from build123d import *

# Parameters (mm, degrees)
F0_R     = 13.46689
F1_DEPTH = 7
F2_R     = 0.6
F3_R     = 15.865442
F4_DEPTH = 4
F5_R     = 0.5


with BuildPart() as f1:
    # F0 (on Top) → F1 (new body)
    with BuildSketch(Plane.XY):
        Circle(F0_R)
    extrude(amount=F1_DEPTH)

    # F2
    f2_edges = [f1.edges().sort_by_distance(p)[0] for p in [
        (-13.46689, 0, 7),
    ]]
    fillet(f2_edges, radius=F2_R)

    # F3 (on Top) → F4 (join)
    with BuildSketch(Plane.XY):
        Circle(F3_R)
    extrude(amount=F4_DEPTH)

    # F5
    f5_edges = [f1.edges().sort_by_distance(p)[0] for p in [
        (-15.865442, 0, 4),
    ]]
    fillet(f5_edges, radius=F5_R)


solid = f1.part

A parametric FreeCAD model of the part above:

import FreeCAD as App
import Part
import Sketcher
from FreeCAD import Vector
Q = App.Units.Quantity


def edges_at(feature, points):
    """Names of the edges that pass closest to the given points."""
    edges = feature.Shape.Edges
    near = lambda p: min(range(len(edges)), key=lambda i: edges[i].distToShape(Part.Vertex(*p))[0])
    return sorted({f"Edge{near(p) + 1}" for p in points})

doc = App.newDocument("Part")
body = doc.addObject("PartDesign::Body", "Body")

# Sketch on XY plane
sketch1 = doc.addObject("Sketcher::SketchObject", "Sketch")
body.addObject(sketch1)
sketch1.AttachmentSupport = (doc.XY_Plane, [""])
sketch1.MapMode = "FlatFace"
sketch1.addGeometry(Part.Circle(Vector(0, 0, 0), Vector(0, 0, 1), 13.46689), False)
sketch1.addConstraint(Sketcher.Constraint("Coincident", 0, 3, -1, 1))
sketch1.addConstraint(Sketcher.Constraint("Diameter", 0, Q("26.93378 mm")))
pad1 = doc.addObject("PartDesign::Pad", "Pad")
body.addObject(pad1)
pad1.Profile = sketch1
pad1.Length = 7
doc.recompute()

fillet = doc.addObject("PartDesign::Fillet", "Fillet")
body.addObject(fillet)
fillet.Base = (pad1, edges_at(pad1, [(-13.467, 0, 7)]))
fillet.Radius = 0.6

# Sketch on XY plane
sketch2 = doc.addObject("Sketcher::SketchObject", "Sketch001")
body.addObject(sketch2)
sketch2.AttachmentSupport = (doc.XY_Plane, [""])
sketch2.MapMode = "FlatFace"
sketch2.addGeometry(Part.Circle(Vector(0, 0, 0), Vector(0, 0, 1), 15.865442), False)
sketch2.addConstraint(Sketcher.Constraint("Coincident", 0, 3, -1, 1))
sketch2.addConstraint(Sketcher.Constraint("Diameter", 0, Q("31.730884 mm")))
pad2 = doc.addObject("PartDesign::Pad", "Pad001")
body.addObject(pad2)
pad2.Profile = sketch2
pad2.Length = 4
doc.recompute()

fillet2 = doc.addObject("PartDesign::Fillet", "Fillet001")
body.addObject(fillet2)
fillet2.Base = (pad2, edges_at(pad2, [(-15.865, 0, 4)]))
fillet2.Radius = 0.5

doc.recompute()
